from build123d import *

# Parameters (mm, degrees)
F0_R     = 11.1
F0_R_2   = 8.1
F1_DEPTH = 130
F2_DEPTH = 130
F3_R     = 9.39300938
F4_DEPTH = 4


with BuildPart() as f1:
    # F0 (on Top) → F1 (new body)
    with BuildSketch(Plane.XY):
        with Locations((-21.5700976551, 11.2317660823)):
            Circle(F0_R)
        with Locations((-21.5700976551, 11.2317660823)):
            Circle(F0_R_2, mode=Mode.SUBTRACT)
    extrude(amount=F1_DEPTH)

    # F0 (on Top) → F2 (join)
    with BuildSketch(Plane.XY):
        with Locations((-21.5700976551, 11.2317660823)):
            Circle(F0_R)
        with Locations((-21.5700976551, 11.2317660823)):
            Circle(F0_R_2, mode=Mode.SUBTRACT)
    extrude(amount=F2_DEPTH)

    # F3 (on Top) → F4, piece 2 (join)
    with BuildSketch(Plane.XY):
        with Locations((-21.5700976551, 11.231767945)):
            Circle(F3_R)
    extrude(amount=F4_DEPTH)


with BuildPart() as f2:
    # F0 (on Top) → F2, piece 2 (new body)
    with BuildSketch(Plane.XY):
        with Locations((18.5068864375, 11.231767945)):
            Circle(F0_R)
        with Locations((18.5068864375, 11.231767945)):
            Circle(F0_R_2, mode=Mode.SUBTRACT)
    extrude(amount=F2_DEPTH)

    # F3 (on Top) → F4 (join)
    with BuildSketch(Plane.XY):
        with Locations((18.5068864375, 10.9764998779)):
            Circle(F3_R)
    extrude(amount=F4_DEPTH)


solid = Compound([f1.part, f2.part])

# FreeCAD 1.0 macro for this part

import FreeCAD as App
import Part
import Sketcher
from FreeCAD import Vector
Q = App.Units.Quantity

doc = App.newDocument("Part")
body = doc.addObject("PartDesign::Body", "Body")

sketch1 = doc.addObject("Sketcher::SketchObject", "Sketch")
body.addObject(sketch1)
sketch1.AttachmentSupport = (doc.XY_Plane, [""])
sketch1.MapMode = "FlatFace"
sketch1.addGeometry(Part.Circle(Vector(-22, 11, 0), Vector(0, 0, 1), 11), False)
sketch1.addGeometry(Part.Circle(Vector(-22, 11, 0), Vector(0, 0, 1), 8), False)
sketch1.addConstraint(Sketcher.Constraint("Coincident", 1, 3, 0, 3))
sketch1.addConstraint(Sketcher.Constraint("Diameter", 0, Q("22.2 mm")))
sketch1.addConstraint(Sketcher.Constraint("Diameter", 1, Q("16.2 mm")))
sketch1.addConstraint(Sketcher.Constraint("DistanceX", 0, 3, -1, 1, Q("21.570098 mm")))
sketch1.addConstraint(Sketcher.Constraint("DistanceY", -1, 1, 0, 3, Q("11.231766 mm")))
pad1 = doc.addObject("PartDesign::Pad", "Pad")
body.addObject(pad1)
pad1.Profile = sketch1
pad1.Length = 130

sketch2 = doc.addObject("Sketcher::SketchObject", "Sketch001")
body.addObject(sketch2)
sketch2.AttachmentSupport = (doc.XY_Plane, [""])
sketch2.MapMode = "FlatFace"
sketch2.addGeometry(Part.Circle(Vector(-22, 11, 0), Vector(0, 0, 1), 11), False)
sketch2.addGeometry(Part.Circle(Vector(-22, 11, 0), Vector(0, 0, 1), 8), False)
sketch2.addConstraint(Sketcher.Constraint("Coincident", 1, 3, 0, 3))
sketch2.addConstraint(Sketcher.Constraint("Diameter", 0, Q("22.2 mm")))
sketch2.addConstraint(Sketcher.Constraint("Diameter", 1, Q("16.2 mm")))
sketch2.addConstraint(Sketcher.Constraint("DistanceX", 0, 3, -1, 1, Q("21.570098 mm")))
sketch2.addConstraint(Sketcher.Constraint("DistanceY", -1, 1, 0, 3, Q("11.231766 mm")))
pad2 = doc.addObject("PartDesign::Pad", "Pad001")
body.addObject(pad2)
pad2.Profile = sketch2
pad2.Length = 130

sketch3 = doc.addObject("Sketcher::SketchObject", "Sketch002")
body.addObject(sketch3)
sketch3.AttachmentSupport = (doc.XY_Plane, [""])
sketch3.MapMode = "FlatFace"
sketch3.addGeometry(Part.Circle(Vector(-22, 11, 0), Vector(0, 0, 1), 9), False)
sketch3.addConstraint(Sketcher.Constraint("Diameter", 0, Q("18.786019 mm")))
sketch3.addConstraint(Sketcher.Constraint("DistanceX", 0, 3, -1, 1, Q("21.570098 mm")))
sketch3.addConstraint(Sketcher.Constraint("DistanceY", -1, 1, 0, 3, Q("11.231768 mm")))
pad3 = doc.addObject("PartDesign::Pad", "Pad002")
body.addObject(pad3)
pad3.Profile = sketch3
pad3.Length = 4
body2 = doc.addObject("PartDesign::Body", "Body001")

sketch4 = doc.addObject("Sketcher::SketchObject", "Sketch003")
body2.addObject(sketch4)
sketch4.AttachmentSupport = (doc.getObject("XY_Plane001"), [""])
sketch4.MapMode = "FlatFace"
sketch4.addGeometry(Part.Circle(Vector(19, 11, 0), Vector(0, 0, 1), 11), False)
sketch4.addGeometry(Part.Circle(Vector(19, 11, 0), Vector(0, 0, 1), 8), False)
sketch4.addConstraint(Sketcher.Constraint("Coincident", 1, 3, 0, 3))
sketch4.addConstraint(Sketcher.Constraint("Diameter", 0, Q("22.2 mm")))
sketch4.addConstraint(Sketcher.Constraint("Diameter", 1, Q("16.2 mm")))
sketch4.addConstraint(Sketcher.Constraint("DistanceX", -1, 1, 0, 3, Q("18.506886 mm")))
sketch4.addConstraint(Sketcher.Constraint("DistanceY", -1, 1, 0, 3, Q("11.231768 mm")))
pad4 = doc.addObject("PartDesign::Pad", "Pad003")
body2.addObject(pad4)
pad4.Profile = sketch4
pad4.Length = 130

sketch5 = doc.addObject("Sketcher::SketchObject", "Sketch004")
body2.addObject(sketch5)
sketch5.AttachmentSupport = (doc.getObject("XY_Plane001"), [""])
sketch5.MapMode = "FlatFace"
sketch5.addGeometry(Part.Circle(Vector(19, 11, 0), Vector(0, 0, 1), 9), False)
sketch5.addConstraint(Sketcher.Constraint("Diameter", 0, Q("18.786019 mm")))
sketch5.addConstraint(Sketcher.Constraint("DistanceY", -1, 1, 0, 3, Q("10.9765 mm")))
sketch5.addConstraint(Sketcher.Constraint("DistanceX", -1, 1, 0, 3, Q("18.506886 mm")))
pad5 = doc.addObject("PartDesign::Pad", "Pad004")
body2.addObject(pad5)
pad5.Profile = sketch5
pad5.Length = 4

doc.recompute()
